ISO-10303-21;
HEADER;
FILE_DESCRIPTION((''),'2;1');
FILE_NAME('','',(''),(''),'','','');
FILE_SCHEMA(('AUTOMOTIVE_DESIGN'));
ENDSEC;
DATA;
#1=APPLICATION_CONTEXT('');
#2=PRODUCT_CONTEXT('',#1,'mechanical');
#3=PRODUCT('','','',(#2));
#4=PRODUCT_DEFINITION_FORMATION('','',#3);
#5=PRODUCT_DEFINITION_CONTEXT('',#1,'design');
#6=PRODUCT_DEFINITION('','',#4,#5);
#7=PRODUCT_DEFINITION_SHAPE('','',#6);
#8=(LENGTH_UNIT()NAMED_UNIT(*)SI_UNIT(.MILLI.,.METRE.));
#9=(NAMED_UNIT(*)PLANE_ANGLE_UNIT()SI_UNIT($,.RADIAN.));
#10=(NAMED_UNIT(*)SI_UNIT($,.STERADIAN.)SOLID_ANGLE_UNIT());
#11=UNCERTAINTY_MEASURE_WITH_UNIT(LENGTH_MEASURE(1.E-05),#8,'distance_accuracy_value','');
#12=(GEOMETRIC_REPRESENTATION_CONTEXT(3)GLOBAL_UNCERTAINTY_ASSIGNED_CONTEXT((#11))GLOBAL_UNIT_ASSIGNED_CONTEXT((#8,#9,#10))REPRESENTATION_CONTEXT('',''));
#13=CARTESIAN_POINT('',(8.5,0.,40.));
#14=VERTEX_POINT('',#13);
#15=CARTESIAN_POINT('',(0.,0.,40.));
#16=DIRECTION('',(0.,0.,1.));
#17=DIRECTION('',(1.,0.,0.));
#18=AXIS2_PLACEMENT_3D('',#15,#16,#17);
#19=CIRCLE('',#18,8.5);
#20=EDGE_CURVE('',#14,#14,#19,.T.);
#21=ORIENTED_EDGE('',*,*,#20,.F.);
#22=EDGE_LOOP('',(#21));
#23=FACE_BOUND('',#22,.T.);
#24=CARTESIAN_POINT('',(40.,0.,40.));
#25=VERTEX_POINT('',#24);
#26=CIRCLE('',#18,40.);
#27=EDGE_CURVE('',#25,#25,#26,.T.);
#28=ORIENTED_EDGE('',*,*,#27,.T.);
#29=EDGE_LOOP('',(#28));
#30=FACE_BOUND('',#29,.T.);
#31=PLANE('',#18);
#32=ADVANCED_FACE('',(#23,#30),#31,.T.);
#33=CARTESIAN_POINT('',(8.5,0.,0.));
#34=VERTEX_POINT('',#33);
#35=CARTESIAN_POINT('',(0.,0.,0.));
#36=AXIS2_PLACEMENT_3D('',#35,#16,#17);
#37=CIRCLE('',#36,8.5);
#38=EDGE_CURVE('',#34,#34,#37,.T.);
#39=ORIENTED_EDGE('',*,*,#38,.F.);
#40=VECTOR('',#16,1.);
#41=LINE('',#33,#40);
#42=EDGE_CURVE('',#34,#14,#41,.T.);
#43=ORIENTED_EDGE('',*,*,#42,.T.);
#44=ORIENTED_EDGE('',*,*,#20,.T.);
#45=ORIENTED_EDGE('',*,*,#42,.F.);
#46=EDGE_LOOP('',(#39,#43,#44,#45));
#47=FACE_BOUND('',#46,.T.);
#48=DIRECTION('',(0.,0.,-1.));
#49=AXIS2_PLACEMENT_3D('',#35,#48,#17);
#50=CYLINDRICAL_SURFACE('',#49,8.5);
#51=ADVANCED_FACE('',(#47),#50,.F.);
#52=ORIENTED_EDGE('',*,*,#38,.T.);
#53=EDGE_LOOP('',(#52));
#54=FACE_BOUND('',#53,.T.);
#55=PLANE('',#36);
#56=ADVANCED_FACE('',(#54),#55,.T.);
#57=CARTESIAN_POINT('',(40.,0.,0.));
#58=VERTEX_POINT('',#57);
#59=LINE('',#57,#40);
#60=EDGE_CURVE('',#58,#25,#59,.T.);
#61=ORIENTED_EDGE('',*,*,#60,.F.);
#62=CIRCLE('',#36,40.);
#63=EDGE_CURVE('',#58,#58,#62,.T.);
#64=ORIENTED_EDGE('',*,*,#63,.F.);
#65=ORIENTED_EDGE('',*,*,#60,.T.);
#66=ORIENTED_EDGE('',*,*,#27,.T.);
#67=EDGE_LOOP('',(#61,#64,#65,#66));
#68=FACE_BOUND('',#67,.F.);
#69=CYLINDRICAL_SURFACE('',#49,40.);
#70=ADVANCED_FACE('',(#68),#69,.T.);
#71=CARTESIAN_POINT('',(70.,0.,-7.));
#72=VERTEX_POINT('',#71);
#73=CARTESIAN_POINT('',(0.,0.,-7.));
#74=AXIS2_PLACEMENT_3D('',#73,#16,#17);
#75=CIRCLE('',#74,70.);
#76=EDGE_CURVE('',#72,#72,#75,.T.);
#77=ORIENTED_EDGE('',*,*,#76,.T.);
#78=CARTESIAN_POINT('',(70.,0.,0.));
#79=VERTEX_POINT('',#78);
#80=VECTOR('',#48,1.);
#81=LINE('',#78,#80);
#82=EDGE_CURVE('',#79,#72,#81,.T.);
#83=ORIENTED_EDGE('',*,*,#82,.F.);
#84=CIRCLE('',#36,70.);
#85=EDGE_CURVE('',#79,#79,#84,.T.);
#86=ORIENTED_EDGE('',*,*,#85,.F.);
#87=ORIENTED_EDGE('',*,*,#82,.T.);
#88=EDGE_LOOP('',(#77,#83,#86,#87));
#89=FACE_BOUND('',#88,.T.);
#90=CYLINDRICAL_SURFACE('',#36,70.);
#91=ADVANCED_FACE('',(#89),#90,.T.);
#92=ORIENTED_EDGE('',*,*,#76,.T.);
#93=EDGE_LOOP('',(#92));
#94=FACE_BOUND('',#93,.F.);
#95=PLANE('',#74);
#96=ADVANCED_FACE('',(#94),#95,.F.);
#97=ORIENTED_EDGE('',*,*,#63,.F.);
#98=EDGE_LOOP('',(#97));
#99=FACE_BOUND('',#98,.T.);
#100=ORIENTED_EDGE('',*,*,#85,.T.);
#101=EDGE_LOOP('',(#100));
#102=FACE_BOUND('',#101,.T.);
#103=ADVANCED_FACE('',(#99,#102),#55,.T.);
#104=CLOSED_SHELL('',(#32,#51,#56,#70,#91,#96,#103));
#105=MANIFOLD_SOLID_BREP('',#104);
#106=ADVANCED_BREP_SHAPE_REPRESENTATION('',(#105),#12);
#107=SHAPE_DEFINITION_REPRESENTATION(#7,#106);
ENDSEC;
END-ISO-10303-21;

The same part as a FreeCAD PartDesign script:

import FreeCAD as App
import Part
import Sketcher

V = App.Vector

doc = App.newDocument("Part")
body = doc.addObject("PartDesign::Body", "Body")

sketch1 = body.newObject("Sketcher::SketchObject", "Sketch")
sketch1.AttachmentSupport = (doc.getObject("XY_Plane"), [""])
sketch1.MapMode = "FlatFace"
sketch1.addGeometry(Part.Circle(V(0, 0, 0), V(0, 0, 1), 70), False)
sketch1.addConstraint(Sketcher.Constraint("Coincident", 0, 3, -1, 1))
sketch1.addConstraint(Sketcher.Constraint("Diameter", 0, 140.0))
pad1 = body.newObject("PartDesign::Pad", "Pad")
pad1.Profile = sketch1
pad1.Length = 7
pad1.Reversed = True

sketch2 = body.newObject("Sketcher::SketchObject", "Sketch001")
sketch2.AttachmentSupport = (doc.getObject("XY_Plane"), [""])
sketch2.MapMode = "FlatFace"
sketch2.addGeometry(Part.Circle(V(0, 0, 0), V(0, 0, 1), 40), False)
sketch2.addGeometry(Part.Circle(V(0, 0, 0), V(0, 0, 1), 8), False)
sketch2.addConstraint(Sketcher.Constraint("Coincident", 0, 3, -1, 1))
sketch2.addConstraint(Sketcher.Constraint("Coincident", 1, 3, -1, 1))
sketch2.addConstraint(Sketcher.Constraint("Diameter", 0, 80.0))
sketch2.addConstraint(Sketcher.Constraint("Diameter", 1, 17.0))
pad2 = body.newObject("PartDesign::Pad", "Pad001")
pad2.Profile = sketch2
pad2.Length = 40

doc.recompute()
